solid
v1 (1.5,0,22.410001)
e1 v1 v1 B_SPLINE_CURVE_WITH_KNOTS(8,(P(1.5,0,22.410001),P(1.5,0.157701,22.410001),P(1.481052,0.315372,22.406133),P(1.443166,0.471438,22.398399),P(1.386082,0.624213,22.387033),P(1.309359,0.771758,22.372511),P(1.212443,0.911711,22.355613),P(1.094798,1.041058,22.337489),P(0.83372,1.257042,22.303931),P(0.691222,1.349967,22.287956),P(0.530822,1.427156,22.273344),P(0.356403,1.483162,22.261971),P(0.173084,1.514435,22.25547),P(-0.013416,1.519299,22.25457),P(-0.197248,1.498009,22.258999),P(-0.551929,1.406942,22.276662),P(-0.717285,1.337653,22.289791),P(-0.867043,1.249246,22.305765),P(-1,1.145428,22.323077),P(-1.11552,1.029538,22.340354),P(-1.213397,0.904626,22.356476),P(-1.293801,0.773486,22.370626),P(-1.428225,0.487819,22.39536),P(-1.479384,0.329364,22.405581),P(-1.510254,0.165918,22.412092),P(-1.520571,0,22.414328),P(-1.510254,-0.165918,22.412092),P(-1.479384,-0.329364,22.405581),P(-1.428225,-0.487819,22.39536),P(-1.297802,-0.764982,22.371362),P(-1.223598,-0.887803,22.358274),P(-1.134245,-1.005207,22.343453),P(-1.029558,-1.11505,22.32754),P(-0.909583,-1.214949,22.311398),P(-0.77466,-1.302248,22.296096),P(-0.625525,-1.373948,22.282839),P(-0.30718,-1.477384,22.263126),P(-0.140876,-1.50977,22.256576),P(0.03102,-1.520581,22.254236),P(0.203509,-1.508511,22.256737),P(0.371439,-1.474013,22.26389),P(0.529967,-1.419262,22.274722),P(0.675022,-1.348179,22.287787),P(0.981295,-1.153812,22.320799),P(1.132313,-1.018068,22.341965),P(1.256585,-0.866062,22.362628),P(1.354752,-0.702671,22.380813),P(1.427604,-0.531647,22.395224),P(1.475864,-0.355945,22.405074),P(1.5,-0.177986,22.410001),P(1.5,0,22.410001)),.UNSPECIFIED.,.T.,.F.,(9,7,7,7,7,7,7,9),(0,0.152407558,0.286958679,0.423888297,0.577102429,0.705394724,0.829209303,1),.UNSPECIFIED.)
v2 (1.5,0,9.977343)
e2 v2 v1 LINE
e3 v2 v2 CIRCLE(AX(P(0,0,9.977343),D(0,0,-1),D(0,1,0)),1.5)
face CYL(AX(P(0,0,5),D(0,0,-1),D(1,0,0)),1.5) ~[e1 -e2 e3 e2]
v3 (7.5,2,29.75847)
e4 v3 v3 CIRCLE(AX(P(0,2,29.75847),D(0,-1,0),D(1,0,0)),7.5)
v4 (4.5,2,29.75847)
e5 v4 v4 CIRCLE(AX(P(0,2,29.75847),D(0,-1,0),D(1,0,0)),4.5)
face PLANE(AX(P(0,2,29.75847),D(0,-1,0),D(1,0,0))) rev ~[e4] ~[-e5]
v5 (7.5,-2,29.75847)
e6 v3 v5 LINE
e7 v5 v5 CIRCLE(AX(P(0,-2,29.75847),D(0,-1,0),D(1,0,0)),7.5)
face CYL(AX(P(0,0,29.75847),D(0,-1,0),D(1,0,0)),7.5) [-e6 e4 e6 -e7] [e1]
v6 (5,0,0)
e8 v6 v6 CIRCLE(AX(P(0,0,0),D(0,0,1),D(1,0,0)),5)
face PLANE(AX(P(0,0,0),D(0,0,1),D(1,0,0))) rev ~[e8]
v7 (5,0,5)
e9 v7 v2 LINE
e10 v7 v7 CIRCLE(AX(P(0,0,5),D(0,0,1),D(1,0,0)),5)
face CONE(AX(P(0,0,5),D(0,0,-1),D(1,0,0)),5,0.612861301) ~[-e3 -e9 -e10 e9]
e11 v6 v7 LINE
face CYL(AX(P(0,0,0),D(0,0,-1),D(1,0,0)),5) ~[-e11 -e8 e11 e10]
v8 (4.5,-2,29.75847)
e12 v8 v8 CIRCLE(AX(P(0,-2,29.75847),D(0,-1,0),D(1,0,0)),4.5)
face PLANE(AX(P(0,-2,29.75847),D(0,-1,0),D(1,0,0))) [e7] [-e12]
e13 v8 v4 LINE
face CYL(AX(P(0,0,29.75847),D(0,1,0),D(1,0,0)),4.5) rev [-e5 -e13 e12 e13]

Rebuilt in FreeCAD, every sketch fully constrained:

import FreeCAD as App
import Part
import Sketcher

V = App.Vector


def add_polygon(sketch, points):
    """Adds a closed chain of lines whose ends are joined by coincident constraints."""
    first, n = sketch.GeometryCount, len(points)
    for a, b in zip(points, points[1:] + points[:1]):
        sketch.addGeometry(Part.LineSegment(App.Vector(*a, 0), App.Vector(*b, 0)), False)
    for i in range(n):
        sketch.addConstraint(Sketcher.Constraint("Coincident", first + i, 2, first + (i + 1) % n, 1))

doc = App.newDocument("Part")
body = doc.addObject("PartDesign::Body", "Body")

sketch1 = doc.addObject("Sketcher::SketchObject", "Sketch")
body.addObject(sketch1)
sketch1.AttachmentSupport = (doc.XY_Plane, [""])
sketch1.MapMode = "FlatFace"
sketch1.addGeometry(Part.Circle(V(0, 0, 0), V(0, 0, 1), 5), False)
sketch1.addConstraint(Sketcher.Constraint("Coincident", 0, 3, -1, 1))
sketch1.addConstraint(Sketcher.Constraint("Diameter", 0, 10.0))
pad1 = doc.addObject("PartDesign::Pad", "Pad")
body.addObject(pad1)
pad1.Profile = sketch1
pad1.Length = 5

sketch2 = doc.addObject("Sketcher::SketchObject", "Sketch001")
body.addObject(sketch2)
sketch2.AttachmentSupport = (doc.XY_Plane, [""])
sketch2.MapMode = "FlatFace"
sketch2.AttachmentOffset = App.Placement(V(0, 0, 5), App.Rotation())
sketch2.addGeometry(Part.Circle(V(0, 0, 0), V(0, 0, 1), 1.5), False)
sketch2.addConstraint(Sketcher.Constraint("Coincident", 0, 3, -1, 1))
sketch2.addConstraint(Sketcher.Constraint("Diameter", 0, 3.0))
pad2 = doc.addObject("PartDesign::Pad", "Pad001")
body.addObject(pad2)
pad2.Profile = sketch2
pad2.Length = 20

sketch3 = doc.addObject("Sketcher::SketchObject", "Sketch002")
body.addObject(sketch3)
sketch3.AttachmentSupport = (doc.XZ_Plane, [""])
sketch3.MapMode = "FlatFace"
sketch3.addGeometry(Part.Circle(V(0, 29.8, 0), V(0, 0, 1), 7.5), False)
sketch3.addGeometry(Part.Circle(V(0, 29.8, 0), V(0, 0, 1), 4.5), False)
sketch3.addConstraint(Sketcher.Constraint("Coincident", 1, 3, 0, 3))
sketch3.addConstraint(Sketcher.Constraint("PointOnObject", 0, 3, -2))
sketch3.addConstraint(Sketcher.Constraint("Diameter", 0, 15.0))
sketch3.addConstraint(Sketcher.Constraint("Diameter", 1, 9.0))
sketch3.addConstraint(Sketcher.Constraint("DistanceY", -1, 1, 0, 3, 29.75847))
pad3 = doc.addObject("PartDesign::Pad", "Pad002")
body.addObject(pad3)
pad3.Profile = sketch3
pad3.Length = 4
pad3.Midplane = True

sketch4 = doc.addObject("Sketcher::SketchObject", "Sketch003")
body.addObject(sketch4)
sketch4.AttachmentSupport = (doc.XZ_Plane, [""])
sketch4.MapMode = "FlatFace"
add_polygon(sketch4, [(5, 5), (0, 12), (0, 5)])
sketch4.addConstraint(Sketcher.Constraint("Vertical", 1))
sketch4.addConstraint(Sketcher.Constraint("Horizontal", 2))
sketch4.addConstraint(Sketcher.Constraint("PointOnObject", 0, 2, -2))
sketch4.addConstraint(Sketcher.Constraint("DistanceX", 2, 1, 2, 2, 5.0))
sketch4.addConstraint(Sketcher.Constraint("DistanceY", -1, 1, 1, 2, 5.0))
sketch4.addConstraint(Sketcher.Constraint("DistanceY", 1, 2, 1, 1, 7.11049))
revolution = doc.addObject("PartDesign::Revolution", "Revolution")
body.addObject(revolution)
revolution.Profile = sketch4
revolution.ReferenceAxis = (sketch4, ["V_Axis"])
revolution.Angle = 360

doc.recompute()
